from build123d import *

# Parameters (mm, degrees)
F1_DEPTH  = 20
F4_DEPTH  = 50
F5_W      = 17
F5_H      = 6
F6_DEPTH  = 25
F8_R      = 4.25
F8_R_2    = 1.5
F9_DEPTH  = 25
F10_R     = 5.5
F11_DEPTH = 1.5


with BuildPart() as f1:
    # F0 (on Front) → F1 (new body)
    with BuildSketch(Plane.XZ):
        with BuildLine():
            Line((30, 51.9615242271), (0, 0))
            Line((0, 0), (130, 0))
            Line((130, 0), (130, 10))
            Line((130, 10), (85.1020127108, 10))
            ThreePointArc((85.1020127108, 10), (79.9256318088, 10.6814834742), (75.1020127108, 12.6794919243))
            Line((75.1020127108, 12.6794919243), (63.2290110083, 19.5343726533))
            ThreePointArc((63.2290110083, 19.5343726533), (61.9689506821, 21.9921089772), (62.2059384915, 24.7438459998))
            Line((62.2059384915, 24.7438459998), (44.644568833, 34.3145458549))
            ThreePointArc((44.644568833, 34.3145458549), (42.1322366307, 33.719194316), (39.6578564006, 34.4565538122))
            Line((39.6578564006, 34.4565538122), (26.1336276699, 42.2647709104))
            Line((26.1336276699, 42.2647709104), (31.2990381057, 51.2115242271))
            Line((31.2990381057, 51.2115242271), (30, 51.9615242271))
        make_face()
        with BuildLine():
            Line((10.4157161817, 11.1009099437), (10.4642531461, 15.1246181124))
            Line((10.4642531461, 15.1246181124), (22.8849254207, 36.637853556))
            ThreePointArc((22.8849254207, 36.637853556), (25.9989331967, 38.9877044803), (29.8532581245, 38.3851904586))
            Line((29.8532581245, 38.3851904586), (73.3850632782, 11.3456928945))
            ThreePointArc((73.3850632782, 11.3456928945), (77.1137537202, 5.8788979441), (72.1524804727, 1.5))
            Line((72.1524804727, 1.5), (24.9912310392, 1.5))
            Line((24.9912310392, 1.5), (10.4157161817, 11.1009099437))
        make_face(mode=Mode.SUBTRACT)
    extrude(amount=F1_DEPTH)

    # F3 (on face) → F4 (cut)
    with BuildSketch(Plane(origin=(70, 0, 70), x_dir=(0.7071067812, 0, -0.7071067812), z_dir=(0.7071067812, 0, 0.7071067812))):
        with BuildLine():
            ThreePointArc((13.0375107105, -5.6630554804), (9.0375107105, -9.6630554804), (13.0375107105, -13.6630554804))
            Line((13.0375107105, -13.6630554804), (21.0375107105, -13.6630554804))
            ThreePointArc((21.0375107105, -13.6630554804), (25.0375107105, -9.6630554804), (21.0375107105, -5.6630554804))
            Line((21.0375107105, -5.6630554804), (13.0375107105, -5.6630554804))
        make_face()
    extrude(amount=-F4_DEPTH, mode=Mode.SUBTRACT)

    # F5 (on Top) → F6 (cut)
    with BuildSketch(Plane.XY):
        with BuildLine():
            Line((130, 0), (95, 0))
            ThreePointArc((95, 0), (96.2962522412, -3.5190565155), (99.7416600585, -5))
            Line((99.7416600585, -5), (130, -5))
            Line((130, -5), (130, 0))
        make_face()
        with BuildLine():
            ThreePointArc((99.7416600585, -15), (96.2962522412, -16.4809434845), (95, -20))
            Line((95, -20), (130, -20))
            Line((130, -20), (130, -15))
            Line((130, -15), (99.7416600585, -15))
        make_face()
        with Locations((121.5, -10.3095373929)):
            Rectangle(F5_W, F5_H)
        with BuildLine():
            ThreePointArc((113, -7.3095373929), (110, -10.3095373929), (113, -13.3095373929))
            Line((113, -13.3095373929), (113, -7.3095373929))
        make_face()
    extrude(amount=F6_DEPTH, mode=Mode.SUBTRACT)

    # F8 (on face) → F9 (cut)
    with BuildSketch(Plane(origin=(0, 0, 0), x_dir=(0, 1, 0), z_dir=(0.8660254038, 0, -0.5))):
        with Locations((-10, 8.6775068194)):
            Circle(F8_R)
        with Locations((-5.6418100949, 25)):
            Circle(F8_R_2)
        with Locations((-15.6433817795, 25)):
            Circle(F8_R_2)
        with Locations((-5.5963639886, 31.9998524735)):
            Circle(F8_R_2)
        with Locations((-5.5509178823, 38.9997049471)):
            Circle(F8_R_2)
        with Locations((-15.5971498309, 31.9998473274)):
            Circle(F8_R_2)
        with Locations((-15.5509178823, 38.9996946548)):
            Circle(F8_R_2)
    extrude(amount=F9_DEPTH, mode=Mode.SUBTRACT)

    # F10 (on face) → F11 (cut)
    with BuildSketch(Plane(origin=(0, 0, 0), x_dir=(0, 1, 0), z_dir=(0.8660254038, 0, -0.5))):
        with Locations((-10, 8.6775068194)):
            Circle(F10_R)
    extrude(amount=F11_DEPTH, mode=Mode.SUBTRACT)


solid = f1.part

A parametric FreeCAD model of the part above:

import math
import FreeCAD as App
import Part
import Sketcher
Q = App.Units.Quantity

doc = App.newDocument("Part")
params = doc.addObject("Spreadsheet::Sheet", "Params")
for row, (alias, value) in enumerate([
    ("sketch1_radius", "20 mm"),
    ("sketch1_radius2", "5 mm"),
    ("sketch1_radius3", "5 mm"),
    ("sketch1_radius4", "5 mm"),
    ("sketch1_radius5", "5 mm"),
    ("pad1_length", "20 mm"),
    ("sketch2_radius", "4 mm"),
    ("sketch2_width", "8 mm"),
    ("pocket1_length", "50 mm"),
    ("sketch3_radius", "3 mm"),
    ("sketch3_width", "35 mm"),
    ("sketch3_width2", "17 mm"),
    ("sketch3_height", "5 mm"),
    ("pocket2_length", "25 mm"),
    ("sketch4_diameter", "3 mm"),
    ("sketch4_diameter2", "8.5 mm"),
    ("pocket3_length", "25 mm"),
    ("sketch5_diameter", "11 mm"),
    ("pocket4_length", "1.5 mm"),
], start=1):
    params.set(f"A{row}", alias)
    params.set(f"B{row}", "=" + value)
    params.setAlias(f"B{row}", alias)

body = doc.addObject("PartDesign::Body", "Body")

# Sketch on XZ plane
sketch1 = body.newObject("Sketcher::SketchObject", "Sketch")
sketch1.AttachmentSupport = (doc.getObject("XZ_Plane"), [""])
sketch1.MapMode = "FlatFace"
sketch1.addGeometry([
    Part.LineSegment(App.Vector(30, 51.961524, 0), App.Vector(0, 0, 0)),  # 0
    Part.LineSegment(App.Vector(0, 0, 0), App.Vector(130, 0, 0)),  # 1
    Part.LineSegment(App.Vector(130, 0, 0), App.Vector(130, 10, 0)),  # 2
    Part.LineSegment(App.Vector(130, 10, 0), App.Vector(85.102013, 10, 0)),  # 3
    Part.ArcOfCircle(Part.Circle(App.Vector(85.102013, 30, 0), App.Vector(0, 0, 1), 20), math.radians(-120), math.radians(-90)),  # 4
    Part.LineSegment(App.Vector(75.102013, 12.679492, 0), App.Vector(63.229011, 19.534373, 0)),  # 5
    Part.ArcOfCircle(Part.Circle(App.Vector(66.875233, 22.955639, 0), App.Vector(0, 0, 1), 5), math.radians(159.044581), math.radians(223.176906)),  # 6
    Part.LineSegment(App.Vector(62.205938, 24.743846, 0), App.Vector(44.644569, 34.314546, 0)),  # 7
    Part.ArcOfCircle(Part.Circle(App.Vector(42.274565, 38.717168, 0), App.Vector(0, 0, 1), 5), math.radians(-121.556679), math.radians(-61.705694)),  # 8
    Part.LineSegment(App.Vector(39.657856, 34.456554, 0), App.Vector(26.133628, 42.264771, 0)),  # 9
    Part.LineSegment(App.Vector(26.133628, 42.264771, 0), App.Vector(31.299038, 51.211524, 0)),  # 10
    Part.LineSegment(App.Vector(31.299038, 51.211524, 0), App.Vector(30, 51.961524, 0)),  # 11
    Part.LineSegment(App.Vector(24.991231, 1.5, 0), App.Vector(10.415716, 11.10091, 0)),  # 12
    Part.LineSegment(App.Vector(10.415716, 11.10091, 0), App.Vector(10.464253, 15.124618, 0)),  # 13
    Part.LineSegment(App.Vector(10.464253, 15.124618, 0), App.Vector(22.884925, 36.637854, 0)),  # 14
    Part.ArcOfCircle(Part.Circle(App.Vector(27.215052, 34.137854, 0), App.Vector(0, 0, 1), 5), math.radians(58.153786), math.radians(150)),  # 15
    Part.LineSegment(App.Vector(29.853258, 38.38519, 0), App.Vector(73.385063, 11.345693, 0)),  # 16
    Part.ArcOfCircle(Part.Circle(App.Vector(72.15248, 6.5, 0), App.Vector(0, 0, 1), 5), math.radians(-90), math.radians(75.728525)),  # 17
    Part.LineSegment(App.Vector(72.15248, 1.5, 0), App.Vector(24.991231, 1.5, 0)),  # 18
], False)
sketch1.addConstraint([
    Sketcher.Constraint("Coincident", 0, 2, 1, 1),
    Sketcher.Constraint("Coincident", 1, 2, 2, 1),
    Sketcher.Constraint("Coincident", 2, 2, 3, 1),
    Sketcher.Constraint("Coincident", 3, 2, 4, 2),
    Sketcher.Constraint("Coincident", 4, 1, 5, 1),
    Sketcher.Constraint("Coincident", 5, 2, 6, 2),
    Sketcher.Constraint("Coincident", 6, 1, 7, 1),
    Sketcher.Constraint("Coincident", 7, 2, 8, 2),
    Sketcher.Constraint("Coincident", 8, 1, 9, 1),
    Sketcher.Constraint("Coincident", 9, 2, 10, 1),
    Sketcher.Constraint("Coincident", 10, 2, 11, 1),
    Sketcher.Constraint("Coincident", 11, 2, 0, 1),
    Sketcher.Constraint("Coincident", 12, 2, 13, 1),
    Sketcher.Constraint("Coincident", 13, 2, 14, 1),
    Sketcher.Constraint("Coincident", 14, 2, 15, 2),
    Sketcher.Constraint("Coincident", 15, 1, 16, 1),
    Sketcher.Constraint("Coincident", 16, 2, 17, 2),
    Sketcher.Constraint("Coincident", 17, 1, 18, 1),
    Sketcher.Constraint("Coincident", 18, 2, 12, 1),
    Sketcher.Constraint("Horizontal", 1),
    Sketcher.Constraint("Vertical", 2),
    Sketcher.Constraint("Horizontal", 3),
    Sketcher.Constraint("Horizontal", 18),
    Sketcher.Constraint("Coincident", 0, 2, -1, 1),
    Sketcher.Constraint("Radius", 4, Q("20 mm")),
    Sketcher.Constraint("Radius", 6, Q("5 mm")),
    Sketcher.Constraint("Radius", 8, Q("5 mm")),
    Sketcher.Constraint("Radius", 15, Q("5 mm")),
    Sketcher.Constraint("Radius", 17, Q("5 mm")),
    Sketcher.Constraint("DistanceX", 1, 1, 1, 2, Q("130 mm")),
    Sketcher.Constraint("DistanceY", 2, 1, 2, 2, Q("10 mm")),
    Sketcher.Constraint("Distance", 0, Q("60 mm")),
    Sketcher.Constraint("Distance", 7, Q("20 mm")),
    Sketcher.Constraint("DistanceX", -1, 1, 11, 2, Q("30 mm")),
    Sketcher.Constraint("DistanceX", 4, 1, 3, 2, Q("10 mm")),
    Sketcher.Constraint("DistanceX", 4, 1, 4, 3, Q("10 mm")),
    Sketcher.Constraint("Distance", 11, Q("1.5 mm")),
    Sketcher.Constraint("DistanceY", -1, 1, 17, 3, Q("6.5 mm")),
    Sketcher.Constraint("DistanceY", 15, 3, 14, 2, Q("2.5 mm")),
    Sketcher.Constraint("DistanceY", 10, 2, 11, 2, Q("0.75 mm")),
    Sketcher.Constraint("Distance", 13, Q("4.024001 mm")),
    Sketcher.Constraint("Distance", 16, Q("51.246 mm")),
    Sketcher.Constraint("DistanceX", 5, 2, 4, 1, Q("11.873002 mm")),
    Sketcher.Constraint("DistanceX", 18, 2, 18, 1, Q("47.161249 mm")),
    Sketcher.Constraint("DistanceY", 6, 1, 7, 2, Q("9.5707 mm")),
    Sketcher.Constraint("DistanceY", 15, 3, 8, 1, Q("0.3187 mm")),
    Sketcher.Constraint("DistanceX", 13, 2, 15, 3, Q("16.750799 mm")),
    Sketcher.Constraint("DistanceX", 15, 1, 8, 1, Q("9.804598 mm")),
    Sketcher.Constraint("DistanceY", 16, 2, 4, 1, Q("1.333799 mm")),
    Sketcher.Constraint("Distance", 5, Q("13.709761 mm")),
    Sketcher.Constraint("Distance", 10, Q("10.330821 mm")),
    Sketcher.Constraint("DistanceX", 3, 2, 3, 1, Q("44.897987 mm")),
    Sketcher.Constraint("DistanceY", -1, 1, 6, 3, Q("22.955639 mm")),
    Sketcher.Constraint("DistanceY", -1, 1, 8, 3, Q("38.717168 mm")),
    Sketcher.Constraint("DistanceX", -1, 1, 17, 3, Q("72.15248 mm")),
    Sketcher.Constraint("DistanceX", -1, 1, 6, 1, Q("62.205938 mm")),
    Sketcher.Constraint("DistanceY", -1, 1, 9, 2, Q("42.264771 mm")),
    Sketcher.Constraint("DistanceY", -1, 1, 12, 2, Q("11.10091 mm")),
    Sketcher.Constraint("DistanceY", -1, 1, 13, 2, Q("15.124618 mm")),
    Sketcher.Constraint("DistanceX", -1, 1, 15, 1, Q("29.853258 mm")),
    Sketcher.Constraint("DistanceX", -1, 1, 17, 1, Q("72.15248 mm")),
])
sketch1.setExpression("Constraints[24]", "Params.sketch1_radius")
sketch1.setExpression("Constraints[25]", "Params.sketch1_radius2")
sketch1.setExpression("Constraints[26]", "Params.sketch1_radius3")
sketch1.setExpression("Constraints[27]", "Params.sketch1_radius4")
sketch1.setExpression("Constraints[28]", "Params.sketch1_radius5")
pad1 = body.newObject("PartDesign::Pad", "Pad")
pad1.Profile = sketch1
pad1.setExpression("Length", "Params.pad1_length")

# Sketch on an angled plane
sketch2 = body.newObject("Sketcher::SketchObject", "Sketch001")
sketch2.Placement = App.Placement(App.Vector(70, 0, 70), App.Rotation(App.Vector(0.707106781, 0, -0.707106781), App.Vector(0, 0.999999999, 0), App.Vector(0.707106781, 0, 0.707106781), "ZXY"))
sketch2.addGeometry([
    Part.ArcOfCircle(Part.Circle(App.Vector(13.037511, -9.663055, 0), App.Vector(0, 0, 1), 4), math.radians(90), math.radians(270)),
    Part.LineSegment(App.Vector(13.037511, -13.663055, 0), App.Vector(21.037511, -13.663055, 0)),
    Part.ArcOfCircle(Part.Circle(App.Vector(21.037511, -9.663055, 0), App.Vector(0, 0, 1), 4), math.radians(-90), math.radians(90)),
    Part.LineSegment(App.Vector(21.037511, -5.663055, 0), App.Vector(13.037511, -5.663055, 0)),
], False)
sketch2.addConstraint([
    Sketcher.Constraint("Tangent", 0, 2, 1, 1),
    Sketcher.Constraint("Tangent", 1, 2, 2, 1),
    Sketcher.Constraint("Tangent", 2, 2, 3, 1),
    Sketcher.Constraint("Tangent", 3, 2, 0, 1),
    Sketcher.Constraint("Horizontal", 1),
    Sketcher.Constraint("Horizontal", 3),
    Sketcher.Constraint("Radius", 0, Q("4 mm")),
    Sketcher.Constraint("DistanceX", 1, 1, 1, 2, Q("8 mm")),
    Sketcher.Constraint("DistanceX", -1, 1, 0, 3, Q("13.037511 mm")),
    Sketcher.Constraint("DistanceY", 0, 3, -1, 1, Q("9.663055 mm")),
])
sketch2.setExpression("Constraints[6]", "Params.sketch2_radius")
sketch2.setExpression("Constraints[7]", "Params.sketch2_width")
pocket1 = body.newObject("PartDesign::Pocket", "Pocket")
pocket1.Profile = sketch2
pocket1.setExpression("Length", "Params.pocket1_length")

# Sketch on XY plane
sketch3 = body.newObject("Sketcher::SketchObject", "Sketch002")
sketch3.AttachmentSupport = (doc.getObject("XY_Plane"), [""])
sketch3.MapMode = "FlatFace"
sketch3.addGeometry([
    Part.LineSegment(App.Vector(130, 0, 0), App.Vector(95, 0, 0)),  # 0
    Part.ArcOfCircle(Part.Circle(App.Vector(99.74166, -0.251666, 0), App.Vector(0, 0, 1), 4.748334), math.radians(176.961848), math.radians(270)),  # 1
    Part.LineSegment(App.Vector(99.74166, -5, 0), App.Vector(130, -5, 0)),  # 2
    Part.LineSegment(App.Vector(130, -5, 0), App.Vector(130, 0, 0)),  # 3
    Part.ArcOfCircle(Part.Circle(App.Vector(99.74166, -19.748334, 0), App.Vector(0, 0, 1), 4.748334), math.radians(90), math.radians(183.038152)),  # 4
    Part.LineSegment(App.Vector(95, -20, 0), App.Vector(130, -20, 0)),  # 5
    Part.LineSegment(App.Vector(130, -20, 0), App.Vector(130, -15, 0)),  # 6
    Part.LineSegment(App.Vector(130, -15, 0), App.Vector(99.74166, -15, 0)),  # 7
    Part.LineSegment(App.Vector(113, -13.309537, 0), App.Vector(130, -13.309537, 0)),  # 8
    Part.LineSegment(App.Vector(130, -13.309537, 0), App.Vector(130, -7.309537, 0)),  # 9
    Part.LineSegment(App.Vector(130, -7.309537, 0), App.Vector(113, -7.309537, 0)),  # 10
    Part.ArcOfCircle(Part.Circle(App.Vector(113, -10.309537, 0), App.Vector(0, 0, 1), 3), math.radians(90), math.radians(270)),  # 11
], False)
sketch3.addConstraint([
    Sketcher.Constraint("Coincident", 0, 2, 1, 1),
    Sketcher.Constraint("Tangent", 1, 2, 2, 1),
    Sketcher.Constraint("Coincident", 2, 2, 3, 1),
    Sketcher.Constraint("Coincident", 3, 2, 0, 1),
    Sketcher.Constraint("Coincident", 4, 2, 5, 1),
    Sketcher.Constraint("Coincident", 5, 2, 6, 1),
    Sketcher.Constraint("Coincident", 6, 2, 7, 1),
    Sketcher.Constraint("Tangent", 7, 2, 4, 1),
    Sketcher.Constraint("Coincident", 8, 2, 9, 1),
    Sketcher.Constraint("Coincident", 9, 2, 10, 1),
    Sketcher.Constraint("Tangent", 10, 2, 11, 1),
    Sketcher.Constraint("Tangent", 11, 2, 8, 1),
    Sketcher.Constraint("Horizontal", 0),
    Sketcher.Constraint("Horizontal", 2),
    Sketcher.Constraint("Vertical", 3),
    Sketcher.Constraint("Horizontal", 5),
    Sketcher.Constraint("Vertical", 6),
    Sketcher.Constraint("Horizontal", 7),
    Sketcher.Constraint("Horizontal", 8),
    Sketcher.Constraint("Vertical", 9),
    Sketcher.Constraint("Horizontal", 10),
    Sketcher.Constraint("Equal", 1, 4),
    Sketcher.Constraint("PointOnObject", 0, 2, -1),
    Sketcher.Constraint("Vertical", 1, 3, 4, 3),
    Sketcher.Constraint("Vertical", 0, 2, 4, 2),
    Sketcher.Constraint("Vertical", 3, 2, 5, 2),
    Sketcher.Constraint("Vertical", 6, 2, 8, 2),
    Sketcher.Constraint("Radius", 11, Q("3 mm")),
    Sketcher.Constraint("DistanceX", 0, 2, 0, 1, Q("35 mm")),
    Sketcher.Constraint("DistanceX", 8, 1, 8, 2, Q("17 mm")),
    Sketcher.Constraint("DistanceY", 3, 1, 3, 2, Q("5 mm")),
    Sketcher.Constraint("DistanceX", -1, 1, 11, 3, Q("113 mm")),
    Sketcher.Constraint("DistanceY", 4, 2, -1, 1, Q("20 mm")),
    Sketcher.Constraint("Radius", 1, Q("4.748334 mm")),
    Sketcher.Constraint("DistanceY", 11, 3, 1, 3, Q("10.057871 mm")),
])
sketch3.setExpression("Constraints[27]", "Params.sketch3_radius")
sketch3.setExpression("Constraints[28]", "Params.sketch3_width")
sketch3.setExpression("Constraints[29]", "Params.sketch3_width2")
sketch3.setExpression("Constraints[30]", "Params.sketch3_height")
pocket2 = body.newObject("PartDesign::Pocket", "Pocket001")
pocket2.Profile = sketch3
pocket2.setExpression("Length", "Params.pocket2_length")
pocket2.Reversed = True

# Sketch on an angled plane
sketch4 = body.newObject("Sketcher::SketchObject", "Sketch003")
sketch4.Placement = App.Placement(App.Vector(0, 0, 0), App.Rotation(App.Vector(0, 1, 0), App.Vector(0.5, 0, 0.866025404), App.Vector(0.866025404, 0, -0.5), "ZXY"))
sketch4.addGeometry([
    Part.Circle(App.Vector(-10, 8.677507, 0), App.Vector(0, 0, 1), 4.25),  # 0
    Part.Circle(App.Vector(-5.64181, 25, 0), App.Vector(0, 0, 1), 1.5),  # 1
    Part.Circle(App.Vector(-15.643382, 25, 0), App.Vector(0, 0, 1), 1.5),  # 2
    Part.Circle(App.Vector(-5.596364, 31.999852, 0), App.Vector(0, 0, 1), 1.5),  # 3
    Part.Circle(App.Vector(-5.550918, 38.999705, 0), App.Vector(0, 0, 1), 1.5),  # 4
    Part.Circle(App.Vector(-15.59715, 31.999847, 0), App.Vector(0, 0, 1), 1.5),  # 5
    Part.Circle(App.Vector(-15.550918, 38.999695, 0), App.Vector(0, 0, 1), 1.5),  # 6
], False)
sketch4.addConstraint([
    Sketcher.Constraint("Equal", 1, 2),
    Sketcher.Constraint("Equal", 2, 3),
    Sketcher.Constraint("Equal", 3, 4),
    Sketcher.Constraint("Equal", 4, 5),
    Sketcher.Constraint("Equal", 5, 6),
    Sketcher.Constraint("Horizontal", 1, 3, 2, 3),
    Sketcher.Constraint("Diameter", 1, Q("3 mm")),
    Sketcher.Constraint("Diameter", 0, Q("8.5 mm")),
    Sketcher.Constraint("DistanceX", 0, 3, -1, 1, Q("10 mm")),
    Sketcher.Constraint("DistanceY", -1, 1, 1, 3, Q("25 mm")),
    Sketcher.Constraint("DistanceX", 6, 3, 4, 3, Q("10 mm")),
    Sketcher.Constraint("DistanceY", 0, 3, 4, 3, Q("30.322198 mm")),
    Sketcher.Constraint("DistanceX", 1, 3, -1, 1, Q("5.64181 mm")),
    Sketcher.Constraint("DistanceX", 2, 3, -1, 1, Q("15.643382 mm")),
    Sketcher.Constraint("DistanceX", 5, 3, -1, 1, Q("15.59715 mm")),
    Sketcher.Constraint("DistanceX", 5, 3, 4, 3, Q("10.046232 mm")),
    Sketcher.Constraint("DistanceY", 0, 3, 5, 3, Q("23.322341 mm")),
    Sketcher.Constraint("DistanceY", -1, 1, 0, 3, Q("8.677507 mm")),
    Sketcher.Constraint("DistanceX", 3, 3, -1, 1, Q("5.596364 mm")),
    Sketcher.Constraint("DistanceY", -1, 1, 3, 3, Q("31.999852 mm")),
    Sketcher.Constraint("DistanceY", -1, 1, 6, 3, Q("38.999695 mm")),
])
sketch4.setExpression("Constraints[6]", "Params.sketch4_diameter")
sketch4.setExpression("Constraints[7]", "Params.sketch4_diameter2")
pocket3 = body.newObject("PartDesign::Pocket", "Pocket002")
pocket3.Profile = sketch4
pocket3.setExpression("Length", "Params.pocket3_length")
pocket3.Reversed = True

# Sketch on an angled plane
sketch5 = body.newObject("Sketcher::SketchObject", "Sketch004")
sketch5.Placement = App.Placement(App.Vector(0, 0, 0), App.Rotation(App.Vector(0, 1, 0), App.Vector(0.5, 0, 0.866025404), App.Vector(0.866025404, 0, -0.5), "ZXY"))
sketch5.addGeometry(Part.Circle(App.Vector(-10, 8.677507, 0), App.Vector(0, 0, 1), 5.5), False)
sketch5.addConstraint([
    Sketcher.Constraint("Diameter", 0, Q("11 mm")),
    Sketcher.Constraint("DistanceX", 0, 3, -1, 1, Q("10 mm")),
    Sketcher.Constraint("DistanceY", -1, 1, 0, 3, Q("8.677507 mm")),
])
sketch5.setExpression("Constraints[0]", "Params.sketch5_diameter")
pocket4 = body.newObject("PartDesign::Pocket", "Pocket003")
pocket4.Profile = sketch5
pocket4.setExpression("Length", "Params.pocket4_length")
pocket4.Reversed = True

doc.recompute()
